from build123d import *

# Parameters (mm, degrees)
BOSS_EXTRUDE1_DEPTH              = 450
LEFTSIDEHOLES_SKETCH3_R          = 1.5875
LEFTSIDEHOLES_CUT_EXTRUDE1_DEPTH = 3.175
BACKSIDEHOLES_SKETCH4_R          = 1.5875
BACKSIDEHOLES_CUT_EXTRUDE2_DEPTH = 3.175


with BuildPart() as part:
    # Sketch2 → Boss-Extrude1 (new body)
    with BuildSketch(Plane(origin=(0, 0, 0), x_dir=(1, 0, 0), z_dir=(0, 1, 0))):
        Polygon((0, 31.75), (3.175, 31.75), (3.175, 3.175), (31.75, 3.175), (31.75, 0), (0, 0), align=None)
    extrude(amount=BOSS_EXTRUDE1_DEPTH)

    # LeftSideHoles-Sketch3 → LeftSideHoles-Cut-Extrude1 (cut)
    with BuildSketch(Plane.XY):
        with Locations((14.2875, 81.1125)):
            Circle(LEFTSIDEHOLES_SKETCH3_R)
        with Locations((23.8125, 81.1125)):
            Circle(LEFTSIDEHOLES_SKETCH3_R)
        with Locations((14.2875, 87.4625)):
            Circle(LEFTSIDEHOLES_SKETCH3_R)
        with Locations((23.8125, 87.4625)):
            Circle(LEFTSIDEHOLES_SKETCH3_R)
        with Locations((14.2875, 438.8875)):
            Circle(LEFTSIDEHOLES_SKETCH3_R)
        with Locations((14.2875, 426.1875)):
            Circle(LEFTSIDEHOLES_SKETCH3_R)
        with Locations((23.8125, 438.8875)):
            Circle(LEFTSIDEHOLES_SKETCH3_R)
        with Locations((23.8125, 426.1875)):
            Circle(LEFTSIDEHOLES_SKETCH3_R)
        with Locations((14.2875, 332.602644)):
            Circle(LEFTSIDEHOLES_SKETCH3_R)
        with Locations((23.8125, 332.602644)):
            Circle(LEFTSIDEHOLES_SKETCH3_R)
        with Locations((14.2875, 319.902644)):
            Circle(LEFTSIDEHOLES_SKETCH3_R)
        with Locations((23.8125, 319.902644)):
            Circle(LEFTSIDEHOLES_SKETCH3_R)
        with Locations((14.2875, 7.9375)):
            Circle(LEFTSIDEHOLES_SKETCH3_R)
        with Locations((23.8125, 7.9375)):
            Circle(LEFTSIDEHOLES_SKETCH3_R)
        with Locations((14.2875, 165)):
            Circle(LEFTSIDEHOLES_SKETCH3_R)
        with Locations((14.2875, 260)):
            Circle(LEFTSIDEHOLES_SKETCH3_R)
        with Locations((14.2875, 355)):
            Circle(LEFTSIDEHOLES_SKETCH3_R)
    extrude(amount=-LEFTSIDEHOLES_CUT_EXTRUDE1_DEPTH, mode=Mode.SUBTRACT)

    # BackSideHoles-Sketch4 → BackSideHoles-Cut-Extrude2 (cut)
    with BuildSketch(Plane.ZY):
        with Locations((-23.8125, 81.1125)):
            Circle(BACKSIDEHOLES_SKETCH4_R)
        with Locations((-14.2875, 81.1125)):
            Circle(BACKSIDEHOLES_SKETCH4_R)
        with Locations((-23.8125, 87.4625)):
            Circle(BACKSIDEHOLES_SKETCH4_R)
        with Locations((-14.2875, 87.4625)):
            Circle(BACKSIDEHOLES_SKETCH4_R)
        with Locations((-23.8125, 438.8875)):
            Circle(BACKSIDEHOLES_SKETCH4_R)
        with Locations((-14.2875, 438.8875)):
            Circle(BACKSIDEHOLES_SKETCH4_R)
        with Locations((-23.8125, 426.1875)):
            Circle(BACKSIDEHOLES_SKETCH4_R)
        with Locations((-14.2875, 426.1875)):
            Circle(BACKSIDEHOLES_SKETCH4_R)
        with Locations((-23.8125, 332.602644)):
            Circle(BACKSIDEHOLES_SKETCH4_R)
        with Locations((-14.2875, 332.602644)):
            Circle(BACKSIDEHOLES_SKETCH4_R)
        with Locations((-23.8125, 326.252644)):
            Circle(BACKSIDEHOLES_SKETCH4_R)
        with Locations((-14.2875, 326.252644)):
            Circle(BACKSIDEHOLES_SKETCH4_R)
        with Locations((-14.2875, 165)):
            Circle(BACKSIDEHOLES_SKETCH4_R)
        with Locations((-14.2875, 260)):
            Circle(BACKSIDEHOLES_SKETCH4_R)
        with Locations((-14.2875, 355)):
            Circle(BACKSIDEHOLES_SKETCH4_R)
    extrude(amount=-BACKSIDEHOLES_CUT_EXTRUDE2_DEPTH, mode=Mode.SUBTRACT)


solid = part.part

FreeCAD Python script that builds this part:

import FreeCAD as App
import Part
import Sketcher
Q = App.Units.Quantity

doc = App.newDocument("Part")
body = doc.addObject("PartDesign::Body", "Body")

# Sketch on XZ plane
sketch1 = body.newObject("Sketcher::SketchObject", "Sketch")
sketch1.AttachmentSupport = (doc.getObject("XZ_Plane"), [""])
sketch1.MapMode = "FlatFace"
sketch1.addGeometry(Part.LineSegment(App.Vector(3.2, -31.8, 0), App.Vector(0, -31.8, 0)), False)
sketch1.addGeometry(Part.LineSegment(App.Vector(0, -31.8, 0), App.Vector(0, 0, 0)), False)
sketch1.addGeometry(Part.LineSegment(App.Vector(0, 0, 0), App.Vector(31.8, 0, 0)), False)
sketch1.addGeometry(Part.LineSegment(App.Vector(31.8, 0, 0), App.Vector(31.8, -3.2, 0)), False)
sketch1.addGeometry(Part.LineSegment(App.Vector(31.8, -3.2, 0), App.Vector(3.2, -3.2, 0)), False)
sketch1.addGeometry(Part.LineSegment(App.Vector(3.2, -3.2, 0), App.Vector(3.2, -31.8, 0)), False)
sketch1.addConstraint(Sketcher.Constraint("Coincident", 0, 2, 1, 1))
sketch1.addConstraint(Sketcher.Constraint("Coincident", 1, 2, 2, 1))
sketch1.addConstraint(Sketcher.Constraint("Coincident", 2, 2, 3, 1))
sketch1.addConstraint(Sketcher.Constraint("Coincident", 3, 2, 4, 1))
sketch1.addConstraint(Sketcher.Constraint("Coincident", 4, 2, 5, 1))
sketch1.addConstraint(Sketcher.Constraint("Coincident", 5, 2, 0, 1))
sketch1.addConstraint(Sketcher.Constraint("Horizontal", 0))
sketch1.addConstraint(Sketcher.Constraint("Vertical", 1))
sketch1.addConstraint(Sketcher.Constraint("Horizontal", 2))
sketch1.addConstraint(Sketcher.Constraint("Vertical", 3))
sketch1.addConstraint(Sketcher.Constraint("Horizontal", 4))
sketch1.addConstraint(Sketcher.Constraint("Vertical", 5))
sketch1.addConstraint(Sketcher.Constraint("Coincident", 1, 2, -1, 1))
sketch1.addConstraint(Sketcher.Constraint("Equal", 2, 1))
sketch1.addConstraint(Sketcher.Constraint("Equal", 0, 3))
sketch1.addConstraint(Sketcher.Constraint("DistanceX", 2, 1, 2, 2, Q("1.25 in")))
sketch1.addConstraint(Sketcher.Constraint("DistanceX", 0, 2, 0, 1, Q("0.125 in")))
pad1 = body.newObject("PartDesign::Pad", "Pad")
pad1.Profile = sketch1
pad1.Length = 450
pad1.Reversed = True

# Sketch on XY plane
sketch2 = body.newObject("Sketcher::SketchObject", "Sketch001")
sketch2.AttachmentSupport = (doc.getObject("XY_Plane"), [""])
sketch2.MapMode = "FlatFace"
sketch2.addGeometry(Part.Circle(App.Vector(14.3, 81.1, 0), App.Vector(0, 0, 1), 1.6), False)
sketch2.addGeometry(Part.Circle(App.Vector(23.8, 81.1, 0), App.Vector(0, 0, 1), 1.6), False)
sketch2.addGeometry(Part.Circle(App.Vector(14.3, 87.5, 0), App.Vector(0, 0, 1), 1.6), False)
sketch2.addGeometry(Part.Circle(App.Vector(23.8, 87.5, 0), App.Vector(0, 0, 1), 1.6), False)
sketch2.addGeometry(Part.Circle(App.Vector(14.3, 438.9, 0), App.Vector(0, 0, 1), 1.6), False)
sketch2.addGeometry(Part.Circle(App.Vector(14.3, 426.2, 0), App.Vector(0, 0, 1), 1.6), False)
sketch2.addGeometry(Part.Circle(App.Vector(23.8, 438.9, 0), App.Vector(0, 0, 1), 1.6), False)
sketch2.addGeometry(Part.Circle(App.Vector(23.8, 426.2, 0), App.Vector(0, 0, 1), 1.6), False)
sketch2.addGeometry(Part.Circle(App.Vector(14.3, 332.6, 0), App.Vector(0, 0, 1), 1.6), False)
sketch2.addGeometry(Part.Circle(App.Vector(23.8, 332.6, 0), App.Vector(0, 0, 1), 1.6), False)
sketch2.addGeometry(Part.Circle(App.Vector(14.3, 319.9, 0), App.Vector(0, 0, 1), 1.6), False)
sketch2.addGeometry(Part.Circle(App.Vector(23.8, 319.9, 0), App.Vector(0, 0, 1), 1.6), False)
sketch2.addGeometry(Part.Circle(App.Vector(14.3, 7.9, 0), App.Vector(0, 0, 1), 1.6), False)
sketch2.addGeometry(Part.Circle(App.Vector(23.8, 7.9, 0), App.Vector(0, 0, 1), 1.6), False)
sketch2.addGeometry(Part.Circle(App.Vector(14.3, 165, 0), App.Vector(0, 0, 1), 1.6), False)
sketch2.addGeometry(Part.Circle(App.Vector(14.3, 260, 0), App.Vector(0, 0, 1), 1.6), False)
sketch2.addGeometry(Part.Circle(App.Vector(14.3, 355, 0), App.Vector(0, 0, 1), 1.6), False)
sketch2.addConstraint(Sketcher.Constraint("Equal", 0, 1))
sketch2.addConstraint(Sketcher.Constraint("Equal", 1, 2))
sketch2.addConstraint(Sketcher.Constraint("Equal", 2, 3))
sketch2.addConstraint(Sketcher.Constraint("Equal", 3, 4))
sketch2.addConstraint(Sketcher.Constraint("Equal", 4, 5))
sketch2.addConstraint(Sketcher.Constraint("Equal", 5, 6))
sketch2.addConstraint(Sketcher.Constraint("Equal", 6, 7))
sketch2.addConstraint(Sketcher.Constraint("Equal", 7, 8))
sketch2.addConstraint(Sketcher.Constraint("Equal", 8, 9))
sketch2.addConstraint(Sketcher.Constraint("Equal", 9, 10))
sketch2.addConstraint(Sketcher.Constraint("Equal", 10, 11))
sketch2.addConstraint(Sketcher.Constraint("Equal", 11, 12))
sketch2.addConstraint(Sketcher.Constraint("Equal", 12, 13))
sketch2.addConstraint(Sketcher.Constraint("Equal", 13, 14))
sketch2.addConstraint(Sketcher.Constraint("Equal", 14, 15))
sketch2.addConstraint(Sketcher.Constraint("Equal", 15, 16))
sketch2.addConstraint(Sketcher.Constraint("Horizontal", 0, 3, 1, 3))
sketch2.addConstraint(Sketcher.Constraint("Horizontal", 2, 3, 3, 3))
sketch2.addConstraint(Sketcher.Constraint("Horizontal", 4, 3, 6, 3))
sketch2.addConstraint(Sketcher.Constraint("Horizontal", 5, 3, 7, 3))
sketch2.addConstraint(Sketcher.Constraint("Horizontal", 8, 3, 9, 3))
sketch2.addConstraint(Sketcher.Constraint("Horizontal", 10, 3, 11, 3))
sketch2.addConstraint(Sketcher.Constraint("Horizontal", 12, 3, 13, 3))
sketch2.addConstraint(Sketcher.Constraint("Vertical", 0, 3, 2, 3))
sketch2.addConstraint(Sketcher.Constraint("Vertical", 1, 3, 3, 3))
sketch2.addConstraint(Sketcher.Constraint("Vertical", 2, 3, 4, 3))
sketch2.addConstraint(Sketcher.Constraint("Vertical", 4, 3, 5, 3))
sketch2.addConstraint(Sketcher.Constraint("Vertical", 3, 3, 6, 3))
sketch2.addConstraint(Sketcher.Constraint("Vertical", 6, 3, 7, 3))
sketch2.addConstraint(Sketcher.Constraint("Vertical", 5, 3, 8, 3))
sketch2.addConstraint(Sketcher.Constraint("Vertical", 7, 3, 9, 3))
sketch2.addConstraint(Sketcher.Constraint("Vertical", 8, 3, 10, 3))
sketch2.addConstraint(Sketcher.Constraint("Vertical", 9, 3, 11, 3))
sketch2.addConstraint(Sketcher.Constraint("Vertical", 10, 3, 12, 3))
sketch2.addConstraint(Sketcher.Constraint("Vertical", 11, 3, 13, 3))
sketch2.addConstraint(Sketcher.Constraint("Vertical", 12, 3, 14, 3))
sketch2.addConstraint(Sketcher.Constraint("Vertical", 14, 3, 15, 3))
sketch2.addConstraint(Sketcher.Constraint("Vertical", 15, 3, 16, 3))
sketch2.addConstraint(Sketcher.Constraint("Diameter", 0, Q("0.125 in")))
sketch2.addConstraint(Sketcher.Constraint("DistanceY", 5, 3, 4, 3, Q("0.5 in")))
sketch2.addConstraint(Sketcher.Constraint("DistanceY", 10, 3, 8, 3, Q("0.5 in")))
sketch2.addConstraint(Sketcher.Constraint("DistanceY", 0, 3, 2, 3, Q("0.25 in")))
sketch2.addConstraint(Sketcher.Constraint("DistanceX", -1, 1, 0, 3, Q("0.5625 in")))
sketch2.addConstraint(Sketcher.Constraint("DistanceX", -1, 1, 1, 3, Q("0.9375 in")))
sketch2.addConstraint(Sketcher.Constraint("DistanceY", -1, 1, 12, 3, Q("0.3125 in")))
sketch2.addConstraint(Sketcher.Constraint("DistanceY", -1, 1, 0, 3, Q("81.1125 mm")))
sketch2.addConstraint(Sketcher.Constraint("DistanceY", -1, 1, 4, 3, Q("438.8875 mm")))
sketch2.addConstraint(Sketcher.Constraint("DistanceY", -1, 1, 14, 3, Q("165 mm")))
sketch2.addConstraint(Sketcher.Constraint("DistanceY", -1, 1, 15, 3, Q("260 mm")))
sketch2.addConstraint(Sketcher.Constraint("DistanceY", -1, 1, 16, 3, Q("355 mm")))
sketch2.addConstraint(Sketcher.Constraint("DistanceY", -1, 1, 8, 3, Q("332.602644 mm")))
pocket1 = body.newObject("PartDesign::Pocket", "Pocket")
pocket1.Profile = sketch2
pocket1.Length = Q("0.125 in")

# Sketch on YZ plane
sketch3 = body.newObject("Sketcher::SketchObject", "Sketch002")
sketch3.AttachmentSupport = (doc.getObject("YZ_Plane"), [""])
sketch3.MapMode = "FlatFace"
sketch3.addGeometry(Part.Circle(App.Vector(81.1, -23.8, 0), App.Vector(0, 0, 1), 1.6), False)
sketch3.addGeometry(Part.Circle(App.Vector(81.1, -14.3, 0), App.Vector(0, 0, 1), 1.6), False)
sketch3.addGeometry(Part.Circle(App.Vector(87.5, -23.8, 0), App.Vector(0, 0, 1), 1.6), False)
sketch3.addGeometry(Part.Circle(App.Vector(87.5, -14.3, 0), App.Vector(0, 0, 1), 1.6), False)
sketch3.addGeometry(Part.Circle(App.Vector(438.9, -23.8, 0), App.Vector(0, 0, 1), 1.6), False)
sketch3.addGeometry(Part.Circle(App.Vector(438.9, -14.3, 0), App.Vector(0, 0, 1), 1.6), False)
sketch3.addGeometry(Part.Circle(App.Vector(426.2, -23.8, 0), App.Vector(0, 0, 1), 1.6), False)
sketch3.addGeometry(Part.Circle(App.Vector(426.2, -14.3, 0), App.Vector(0, 0, 1), 1.6), False)
sketch3.addGeometry(Part.Circle(App.Vector(332.6, -23.8, 0), App.Vector(0, 0, 1), 1.6), False)
sketch3.addGeometry(Part.Circle(App.Vector(332.6, -14.3, 0), App.Vector(0, 0, 1), 1.6), False)
sketch3.addGeometry(Part.Circle(App.Vector(326.3, -23.8, 0), App.Vector(0, 0, 1), 1.6), False)
sketch3.addGeometry(Part.Circle(App.Vector(326.3, -14.3, 0), App.Vector(0, 0, 1), 1.6), False)
sketch3.addGeometry(Part.Circle(App.Vector(165, -14.3, 0), App.Vector(0, 0, 1), 1.6), False)
sketch3.addGeometry(Part.Circle(App.Vector(260, -14.3, 0), App.Vector(0, 0, 1), 1.6), False)
sketch3.addGeometry(Part.Circle(App.Vector(355, -14.3, 0), App.Vector(0, 0, 1), 1.6), False)
sketch3.addConstraint(Sketcher.Constraint("Equal", 0, 1))
sketch3.addConstraint(Sketcher.Constraint("Equal", 1, 2))
sketch3.addConstraint(Sketcher.Constraint("Equal", 2, 3))
sketch3.addConstraint(Sketcher.Constraint("Equal", 3, 4))
sketch3.addConstraint(Sketcher.Constraint("Equal", 4, 5))
sketch3.addConstraint(Sketcher.Constraint("Equal", 5, 6))
sketch3.addConstraint(Sketcher.Constraint("Equal", 6, 7))
sketch3.addConstraint(Sketcher.Constraint("Equal", 7, 8))
sketch3.addConstraint(Sketcher.Constraint("Equal", 8, 9))
sketch3.addConstraint(Sketcher.Constraint("Equal", 9, 10))
sketch3.addConstraint(Sketcher.Constraint("Equal", 10, 11))
sketch3.addConstraint(Sketcher.Constraint("Equal", 11, 12))
sketch3.addConstraint(Sketcher.Constraint("Equal", 12, 13))
sketch3.addConstraint(Sketcher.Constraint("Equal", 13, 14))
sketch3.addConstraint(Sketcher.Constraint("Horizontal", 0, 3, 2, 3))
sketch3.addConstraint(Sketcher.Constraint("Horizontal", 1, 3, 3, 3))
sketch3.addConstraint(Sketcher.Constraint("Horizontal", 2, 3, 4, 3))
sketch3.addConstraint(Sketcher.Constraint("Horizontal", 3, 3, 5, 3))
sketch3.addConstraint(Sketcher.Constraint("Horizontal", 4, 3, 6, 3))
sketch3.addConstraint(Sketcher.Constraint("Horizontal", 5, 3, 7, 3))
sketch3.addConstraint(Sketcher.Constraint("Horizontal", 6, 3, 8, 3))
sketch3.addConstraint(Sketcher.Constraint("Horizontal", 7, 3, 9, 3))
sketch3.addConstraint(Sketcher.Constraint("Horizontal", 8, 3, 10, 3))
sketch3.addConstraint(Sketcher.Constraint("Horizontal", 9, 3, 11, 3))
sketch3.addConstraint(Sketcher.Constraint("Horizontal", 11, 3, 12, 3))
sketch3.addConstraint(Sketcher.Constraint("Horizontal", 12, 3, 13, 3))
sketch3.addConstraint(Sketcher.Constraint("Horizontal", 13, 3, 14, 3))
sketch3.addConstraint(Sketcher.Constraint("Vertical", 0, 3, 1, 3))
sketch3.addConstraint(Sketcher.Constraint("Vertical", 2, 3, 3, 3))
sketch3.addConstraint(Sketcher.Constraint("Vertical", 4, 3, 5, 3))
sketch3.addConstraint(Sketcher.Constraint("Vertical", 6, 3, 7, 3))
sketch3.addConstraint(Sketcher.Constraint("Vertical", 8, 3, 9, 3))
sketch3.addConstraint(Sketcher.Constraint("Vertical", 10, 3, 11, 3))
sketch3.addConstraint(Sketcher.Constraint("Diameter", 0, Q("0.125 in")))
sketch3.addConstraint(Sketcher.Constraint("DistanceX", 6, 3, 4, 3, Q("0.5 in")))
sketch3.addConstraint(Sketcher.Constraint("DistanceX", 0, 3, 2, 3, Q("0.25 in")))
sketch3.addConstraint(Sketcher.Constraint("DistanceX", 10, 3, 8, 3, Q("0.25 in")))
sketch3.addConstraint(Sketcher.Constraint("DistanceY", 0, 3, -1, 1, Q("0.9375 in")))
sketch3.addConstraint(Sketcher.Constraint("DistanceY", 1, 3, -1, 1, Q("0.5625 in")))
sketch3.addConstraint(Sketcher.Constraint("DistanceX", -1, 1, 0, 3, Q("81.1125 mm")))
sketch3.addConstraint(Sketcher.Constraint("DistanceX", -1, 1, 4, 3, Q("438.8875 mm")))
sketch3.addConstraint(Sketcher.Constraint("DistanceX", -1, 1, 12, 3, Q("165 mm")))
sketch3.addConstraint(Sketcher.Constraint("DistanceX", -1, 1, 13, 3, Q("260 mm")))
sketch3.addConstraint(Sketcher.Constraint("DistanceX", -1, 1, 14, 3, Q("355 mm")))
sketch3.addConstraint(Sketcher.Constraint("DistanceX", -1, 1, 8, 3, Q("332.602644 mm")))
pocket2 = body.newObject("PartDesign::Pocket", "Pocket001")
pocket2.Profile = sketch3
pocket2.Length = Q("0.125 in")
pocket2.Reversed = True

doc.recompute()
